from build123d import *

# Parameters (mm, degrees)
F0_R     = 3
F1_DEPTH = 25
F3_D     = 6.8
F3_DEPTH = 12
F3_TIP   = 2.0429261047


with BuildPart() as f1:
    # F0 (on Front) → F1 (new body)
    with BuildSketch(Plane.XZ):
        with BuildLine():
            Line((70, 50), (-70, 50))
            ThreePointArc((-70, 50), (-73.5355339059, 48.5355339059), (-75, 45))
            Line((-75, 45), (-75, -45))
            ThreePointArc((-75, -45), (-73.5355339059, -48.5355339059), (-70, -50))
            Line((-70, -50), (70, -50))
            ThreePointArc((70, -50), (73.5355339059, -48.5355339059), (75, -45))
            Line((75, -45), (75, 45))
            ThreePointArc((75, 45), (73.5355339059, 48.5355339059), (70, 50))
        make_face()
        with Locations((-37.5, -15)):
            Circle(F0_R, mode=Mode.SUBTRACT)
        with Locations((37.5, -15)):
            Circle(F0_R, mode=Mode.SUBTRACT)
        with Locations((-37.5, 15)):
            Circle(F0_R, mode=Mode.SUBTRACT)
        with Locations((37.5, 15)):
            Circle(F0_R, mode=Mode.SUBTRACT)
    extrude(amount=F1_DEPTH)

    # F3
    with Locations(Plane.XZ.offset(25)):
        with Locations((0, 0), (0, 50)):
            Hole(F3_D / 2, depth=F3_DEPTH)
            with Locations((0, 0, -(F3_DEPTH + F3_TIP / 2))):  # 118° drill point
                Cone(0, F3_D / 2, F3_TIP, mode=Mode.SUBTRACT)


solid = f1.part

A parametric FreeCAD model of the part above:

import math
import FreeCAD as App
import Part
import Sketcher

V = App.Vector
Q = App.Units.Quantity

doc = App.newDocument("Part")
body = doc.addObject("PartDesign::Body", "Body")

# Sketch on XZ plane
sketch1 = body.newObject("Sketcher::SketchObject", "Sketch")
sketch1.AttachmentSupport = (doc.getObject("XZ_Plane"), [""])
sketch1.MapMode = "FlatFace"
sketch1.addGeometry(Part.LineSegment(V(70, 50, 0), V(-70, 50, 0)), False)
sketch1.addGeometry(Part.ArcOfCircle(Part.Circle(V(-70, 45, 0), V(0, 0, 1), 5), math.radians(90), math.radians(180)), False)
sketch1.addGeometry(Part.LineSegment(V(-75, 45, 0), V(-75, -45, 0)), False)
sketch1.addGeometry(Part.ArcOfCircle(Part.Circle(V(-70, -45, 0), V(0, 0, 1), 5), math.radians(180), math.radians(270)), False)
sketch1.addGeometry(Part.LineSegment(V(-70, -50, 0), V(70, -50, 0)), False)
sketch1.addGeometry(Part.ArcOfCircle(Part.Circle(V(70, -45, 0), V(0, 0, 1), 5), math.radians(-90), math.radians(0)), False)
sketch1.addGeometry(Part.LineSegment(V(75, -45, 0), V(75, 45, 0)), False)
sketch1.addGeometry(Part.ArcOfCircle(Part.Circle(V(70, 45, 0), V(0, 0, 1), 5), math.radians(0), math.radians(90)), False)
sketch1.addGeometry(Part.Circle(V(-37.5, -15, 0), V(0, 0, 1), 3), False)
sketch1.addGeometry(Part.Circle(V(37.5, -15, 0), V(0, 0, 1), 3), False)
sketch1.addGeometry(Part.Circle(V(-37.5, 15, 0), V(0, 0, 1), 3), False)
sketch1.addGeometry(Part.Circle(V(37.5, 15, 0), V(0, 0, 1), 3), False)
sketch1.addConstraint(Sketcher.Constraint("Tangent", 0, 2, 1, 1))
sketch1.addConstraint(Sketcher.Constraint("Tangent", 1, 2, 2, 1))
sketch1.addConstraint(Sketcher.Constraint("Tangent", 2, 2, 3, 1))
sketch1.addConstraint(Sketcher.Constraint("Tangent", 3, 2, 4, 1))
sketch1.addConstraint(Sketcher.Constraint("Tangent", 4, 2, 5, 1))
sketch1.addConstraint(Sketcher.Constraint("Tangent", 5, 2, 6, 1))
sketch1.addConstraint(Sketcher.Constraint("Tangent", 6, 2, 7, 1))
sketch1.addConstraint(Sketcher.Constraint("Tangent", 7, 2, 0, 1))
sketch1.addConstraint(Sketcher.Constraint("Horizontal", 0))
sketch1.addConstraint(Sketcher.Constraint("Vertical", 2))
sketch1.addConstraint(Sketcher.Constraint("Horizontal", 4))
sketch1.addConstraint(Sketcher.Constraint("Vertical", 6))
sketch1.addConstraint(Sketcher.Constraint("Equal", 1, 3))
sketch1.addConstraint(Sketcher.Constraint("Equal", 3, 5))
sketch1.addConstraint(Sketcher.Constraint("Equal", 5, 7))
sketch1.addConstraint(Sketcher.Constraint("Equal", 8, 9))
sketch1.addConstraint(Sketcher.Constraint("Equal", 9, 10))
sketch1.addConstraint(Sketcher.Constraint("Equal", 10, 11))
sketch1.addConstraint(Sketcher.Constraint("Symmetric", 1, 3, 5, 3, -1, 1))
sketch1.addConstraint(Sketcher.Constraint("Symmetric", 9, 3, 10, 3, -1, 1))
sketch1.addConstraint(Sketcher.Constraint("Symmetric", 8, 3, 11, 3, -1, 1))
sketch1.addConstraint(Sketcher.Constraint("Symmetric", 8, 3, 9, 3, -2))
sketch1.addConstraint(Sketcher.Constraint("Diameter", 8, Q("6 mm")))
sketch1.addConstraint(Sketcher.Constraint("Radius", 1, Q("5 mm")))
sketch1.addConstraint(Sketcher.Constraint("DistanceX", 0, 2, 0, 1, Q("140 mm")))
sketch1.addConstraint(Sketcher.Constraint("DistanceY", 2, 2, 2, 1, Q("90 mm")))
sketch1.addConstraint(Sketcher.Constraint("DistanceY", 8, 3, -1, 1, Q("15 mm")))
sketch1.addConstraint(Sketcher.Constraint("DistanceX", 8, 3, 9, 3, Q("75 mm")))
pad1 = body.newObject("PartDesign::Pad", "Pad")
pad1.Profile = sketch1
pad1.Length = 25

# Sketch on XZ plane
sketch2 = body.newObject("Sketcher::SketchObject", "Sketch001")
sketch2.AttachmentSupport = (doc.getObject("XZ_Plane"), [""])
sketch2.MapMode = "FlatFace"
sketch2.AttachmentOffset = App.Placement(V(0, 0, 25), App.Rotation())
sketch2.addGeometry(Part.Circle(V(0, 0, 0), V(0, 0, 1), 3.4), False)
sketch2.addGeometry(Part.Circle(V(0, 50, 0), V(0, 0, 1), 3.4), False)
sketch2.addConstraint(Sketcher.Constraint("Coincident", 0, 3, -1, 1))
sketch2.addConstraint(Sketcher.Constraint("Equal", 0, 1))
sketch2.addConstraint(Sketcher.Constraint("PointOnObject", 1, 3, -2))
sketch2.addConstraint(Sketcher.Constraint("Diameter", 0, Q("6.8 mm")))
sketch2.addConstraint(Sketcher.Constraint("DistanceY", -1, 1, 1, 3, Q("50 mm")))
doc.recompute()
hole = body.newObject("PartDesign::Hole", "Hole")
hole.Profile = sketch2
hole.ThreadType = "None"
hole.Diameter = 6.8
hole.DepthType = "Dimension"
hole.Depth = 12
hole.DrillPoint = "Angled"
hole.DrillPointAngle = 118

doc.recompute()
